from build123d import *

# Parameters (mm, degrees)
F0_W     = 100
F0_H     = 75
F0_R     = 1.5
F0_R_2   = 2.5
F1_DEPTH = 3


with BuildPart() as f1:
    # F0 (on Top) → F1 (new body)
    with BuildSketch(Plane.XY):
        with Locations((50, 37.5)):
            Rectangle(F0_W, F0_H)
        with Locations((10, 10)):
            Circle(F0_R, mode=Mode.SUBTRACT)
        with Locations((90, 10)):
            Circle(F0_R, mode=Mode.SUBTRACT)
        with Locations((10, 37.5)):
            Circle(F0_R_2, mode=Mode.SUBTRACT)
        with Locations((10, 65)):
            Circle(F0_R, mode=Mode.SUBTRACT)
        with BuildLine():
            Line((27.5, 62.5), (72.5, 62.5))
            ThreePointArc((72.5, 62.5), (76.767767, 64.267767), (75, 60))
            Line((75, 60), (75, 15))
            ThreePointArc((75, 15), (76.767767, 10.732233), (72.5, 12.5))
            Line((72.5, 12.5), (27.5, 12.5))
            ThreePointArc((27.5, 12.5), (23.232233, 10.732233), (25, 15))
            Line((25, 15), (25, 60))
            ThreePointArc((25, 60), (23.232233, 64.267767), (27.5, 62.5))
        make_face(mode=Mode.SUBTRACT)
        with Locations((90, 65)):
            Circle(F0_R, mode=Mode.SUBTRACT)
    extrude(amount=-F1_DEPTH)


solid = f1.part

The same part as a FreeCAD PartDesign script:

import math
import FreeCAD as App
import Part
import Sketcher
from FreeCAD import Vector
Q = App.Units.Quantity


def add_polygon(sketch, points):
    """Adds a closed chain of lines whose ends are joined by coincident constraints."""
    first, n = sketch.GeometryCount, len(points)
    for a, b in zip(points, points[1:] + points[:1]):
        sketch.addGeometry(Part.LineSegment(App.Vector(*a, 0), App.Vector(*b, 0)), False)
    for i in range(n):
        sketch.addConstraint(Sketcher.Constraint("Coincident", first + i, 2, first + (i + 1) % n, 1))

doc = App.newDocument("Part")
body = doc.addObject("PartDesign::Body", "Body")

# Sketch on XY plane
sketch1 = body.newObject("Sketcher::SketchObject", "Sketch")
sketch1.AttachmentSupport = (doc.getObject("XY_Plane"), [""])
sketch1.MapMode = "FlatFace"
add_polygon(sketch1, [(0, 75), (0, 0), (100, 0), (100, 75)])  # lines 0-3
sketch1.addGeometry(Part.Circle(Vector(10, 10, 0), Vector(0, 0, 1), 1.5), False)  # 4
sketch1.addGeometry(Part.Circle(Vector(90, 10, 0), Vector(0, 0, 1), 1.5), False)  # 5
sketch1.addGeometry(Part.Circle(Vector(10, 37.5, 0), Vector(0, 0, 1), 2.5), False)  # 6
sketch1.addGeometry(Part.Circle(Vector(10, 65, 0), Vector(0, 0, 1), 1.5), False)  # 7
sketch1.addGeometry(Part.ArcOfCircle(Part.Circle(Vector(25, 62.5, 0), Vector(0, 0, 1), 2.5), math.radians(-0.000001), math.radians(270.000001)), False)  # 8
sketch1.addGeometry(Part.LineSegment(Vector(27.5, 62.5, 0), Vector(72.5, 62.5, 0)), False)  # 9
sketch1.addGeometry(Part.ArcOfCircle(Part.Circle(Vector(75, 62.5, 0), Vector(0, 0, 1), 2.5), math.radians(-90.000001), math.radians(180.000001)), False)  # 10
sketch1.addGeometry(Part.LineSegment(Vector(75, 60, 0), Vector(75, 15, 0)), False)  # 11
sketch1.addGeometry(Part.ArcOfCircle(Part.Circle(Vector(75, 12.5, 0), Vector(0, 0, 1), 2.5), math.radians(179.999999), math.radians(450.000001)), False)  # 12
sketch1.addGeometry(Part.LineSegment(Vector(72.5, 12.5, 0), Vector(27.5, 12.5, 0)), False)  # 13
sketch1.addGeometry(Part.ArcOfCircle(Part.Circle(Vector(25, 12.5, 0), Vector(0, 0, 1), 2.5), math.radians(89.999999), math.radians(360.000001)), False)  # 14
sketch1.addGeometry(Part.LineSegment(Vector(25, 15, 0), Vector(25, 60, 0)), False)  # 15
sketch1.addGeometry(Part.Circle(Vector(90, 65, 0), Vector(0, 0, 1), 1.5), False)  # 16
sketch1.addConstraint([
    Sketcher.Constraint("Coincident", 8, 1, 9, 1),
    Sketcher.Constraint("Coincident", 9, 2, 10, 2),
    Sketcher.Constraint("Coincident", 10, 1, 11, 1),
    Sketcher.Constraint("Coincident", 11, 2, 12, 2),
    Sketcher.Constraint("Coincident", 12, 1, 13, 1),
    Sketcher.Constraint("Coincident", 13, 2, 14, 2),
    Sketcher.Constraint("Coincident", 14, 1, 15, 1),
    Sketcher.Constraint("Coincident", 15, 2, 8, 2),
    Sketcher.Constraint("Vertical", 0),
    Sketcher.Constraint("Horizontal", 1),
    Sketcher.Constraint("Vertical", 2),
    Sketcher.Constraint("Horizontal", 3),
    Sketcher.Constraint("Horizontal", 9),
    Sketcher.Constraint("Vertical", 11),
    Sketcher.Constraint("Horizontal", 13),
    Sketcher.Constraint("Vertical", 15),
    Sketcher.Constraint("Coincident", 0, 2, -1, 1),
    Sketcher.Constraint("Equal", 4, 5),
    Sketcher.Constraint("Equal", 5, 7),
    Sketcher.Constraint("Equal", 6, 8),
    Sketcher.Constraint("Equal", 8, 10),
    Sketcher.Constraint("Equal", 10, 12),
    Sketcher.Constraint("Equal", 12, 14),
    Sketcher.Constraint("Equal", 7, 16),
    Sketcher.Constraint("Horizontal", 4, 3, 5, 3),
    Sketcher.Constraint("Horizontal", 8, 3, 10, 3),
    Sketcher.Constraint("Horizontal", 12, 3, 14, 3),
    Sketcher.Constraint("Horizontal", 7, 3, 16, 3),
    Sketcher.Constraint("Horizontal", 10, 3, 8, 1),
    Sketcher.Constraint("Horizontal", 14, 3, 12, 1),
    Sketcher.Constraint("Vertical", 4, 3, 6, 3),
    Sketcher.Constraint("Vertical", 6, 3, 7, 3),
    Sketcher.Constraint("Vertical", 10, 3, 12, 3),
    Sketcher.Constraint("Vertical", 8, 3, 14, 3),
    Sketcher.Constraint("Vertical", 5, 3, 16, 3),
    Sketcher.Constraint("Vertical", 12, 3, 10, 1),
    Sketcher.Constraint("Vertical", 8, 3, 14, 1),
    Sketcher.Constraint("Equal", 13, 11),
    Sketcher.Constraint("Diameter", 4, Q("3 mm")),
    Sketcher.Constraint("Diameter", 6, Q("5 mm")),
    Sketcher.Constraint("DistanceX", 1, 1, 1, 2, Q("100 mm")),
    Sketcher.Constraint("DistanceX", 9, 1, 9, 2, Q("45 mm")),
    Sketcher.Constraint("DistanceY", 0, 2, 0, 1, Q("75 mm")),
    Sketcher.Constraint("DistanceX", -1, 1, 4, 3, Q("10 mm")),
    Sketcher.Constraint("DistanceY", -1, 1, 4, 3, Q("10 mm")),
    Sketcher.Constraint("DistanceX", -1, 1, 5, 3, Q("90 mm")),
    Sketcher.Constraint("DistanceY", -1, 1, 7, 3, Q("65 mm")),
    Sketcher.Constraint("DistanceX", -1, 1, 8, 3, Q("25 mm")),
    Sketcher.Constraint("DistanceY", -1, 1, 10, 1, Q("60 mm")),
    Sketcher.Constraint("DistanceY", 6, 3, 8, 3, Q("25 mm")),
])
pad1 = body.newObject("PartDesign::Pad", "Pad")
pad1.Profile = sketch1
pad1.Length = 3
pad1.Reversed = True

doc.recompute()
